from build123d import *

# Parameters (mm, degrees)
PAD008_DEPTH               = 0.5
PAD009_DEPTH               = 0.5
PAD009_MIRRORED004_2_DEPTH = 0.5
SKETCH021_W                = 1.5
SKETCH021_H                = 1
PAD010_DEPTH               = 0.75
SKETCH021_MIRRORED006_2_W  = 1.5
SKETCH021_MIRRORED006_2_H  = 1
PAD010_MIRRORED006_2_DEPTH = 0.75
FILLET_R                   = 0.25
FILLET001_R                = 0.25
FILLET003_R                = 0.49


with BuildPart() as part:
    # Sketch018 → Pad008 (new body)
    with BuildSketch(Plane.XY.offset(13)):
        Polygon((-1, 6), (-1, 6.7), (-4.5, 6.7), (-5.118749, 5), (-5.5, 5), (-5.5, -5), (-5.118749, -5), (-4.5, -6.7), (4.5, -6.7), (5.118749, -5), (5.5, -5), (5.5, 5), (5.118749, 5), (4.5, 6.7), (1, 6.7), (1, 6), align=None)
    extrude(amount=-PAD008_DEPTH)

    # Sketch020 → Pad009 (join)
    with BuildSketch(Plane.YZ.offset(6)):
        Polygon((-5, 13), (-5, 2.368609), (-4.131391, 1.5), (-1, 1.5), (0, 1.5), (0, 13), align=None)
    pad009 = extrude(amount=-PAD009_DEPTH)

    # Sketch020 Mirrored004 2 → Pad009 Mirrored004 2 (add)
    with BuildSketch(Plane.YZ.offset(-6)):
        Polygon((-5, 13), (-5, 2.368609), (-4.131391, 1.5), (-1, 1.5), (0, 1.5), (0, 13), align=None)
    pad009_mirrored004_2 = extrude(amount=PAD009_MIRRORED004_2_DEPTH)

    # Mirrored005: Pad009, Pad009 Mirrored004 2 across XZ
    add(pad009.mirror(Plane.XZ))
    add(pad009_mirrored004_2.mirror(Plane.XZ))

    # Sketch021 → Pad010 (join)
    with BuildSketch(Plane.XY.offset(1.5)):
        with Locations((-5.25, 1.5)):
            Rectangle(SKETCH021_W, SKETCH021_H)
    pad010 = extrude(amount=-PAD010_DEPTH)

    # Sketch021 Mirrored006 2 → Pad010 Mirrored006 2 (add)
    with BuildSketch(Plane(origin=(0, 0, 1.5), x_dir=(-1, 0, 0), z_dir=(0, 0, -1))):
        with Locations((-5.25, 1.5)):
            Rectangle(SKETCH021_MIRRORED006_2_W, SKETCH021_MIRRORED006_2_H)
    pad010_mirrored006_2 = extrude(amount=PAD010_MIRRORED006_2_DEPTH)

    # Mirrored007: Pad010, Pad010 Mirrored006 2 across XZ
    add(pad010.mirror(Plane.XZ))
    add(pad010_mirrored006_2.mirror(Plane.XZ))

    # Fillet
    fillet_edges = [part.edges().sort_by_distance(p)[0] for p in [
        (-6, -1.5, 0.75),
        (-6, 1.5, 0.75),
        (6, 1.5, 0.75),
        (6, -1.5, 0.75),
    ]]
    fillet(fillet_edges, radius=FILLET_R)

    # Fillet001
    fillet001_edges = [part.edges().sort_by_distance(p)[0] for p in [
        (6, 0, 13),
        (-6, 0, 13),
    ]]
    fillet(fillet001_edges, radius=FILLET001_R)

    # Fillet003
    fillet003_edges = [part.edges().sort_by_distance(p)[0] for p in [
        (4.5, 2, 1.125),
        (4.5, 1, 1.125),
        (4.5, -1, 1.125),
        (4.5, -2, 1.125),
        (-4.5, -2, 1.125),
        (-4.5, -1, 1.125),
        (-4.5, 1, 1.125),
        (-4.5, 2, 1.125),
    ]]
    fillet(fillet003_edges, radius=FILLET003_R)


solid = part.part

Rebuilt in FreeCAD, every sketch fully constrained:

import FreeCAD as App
import Part
import Sketcher

V = App.Vector
Q = App.Units.Quantity


def edges_at(feature, points):
    """Names of the edges that pass closest to the given points."""
    edges = feature.Shape.Edges
    near = lambda p: min(range(len(edges)), key=lambda i: edges[i].distToShape(Part.Vertex(*p))[0])
    return sorted({f"Edge{near(p) + 1}" for p in points})

doc = App.newDocument("Part")
body = doc.addObject("PartDesign::Body", "Body")

# Sketch on XY plane
sketch1 = doc.addObject("Sketcher::SketchObject", "Sketch")
body.addObject(sketch1)
sketch1.AttachmentSupport = (doc.XY_Plane, [""])
sketch1.MapMode = "FlatFace"
sketch1.AttachmentOffset = App.Placement(V(0, 0, 13), App.Rotation())
sketch1.addGeometry([
    Part.LineSegment(V(-1, 6, 0), V(-1, 6.7, 0)),  # 0
    Part.LineSegment(V(-1, 6.7, 0), V(-4.5, 6.7, 0)),  # 1
    Part.LineSegment(V(-4.5, 6.7, 0), V(-5.12, 5, 0)),  # 2
    Part.LineSegment(V(-5.12, 5, 0), V(-5.5, 5, 0)),  # 3
    Part.LineSegment(V(-5.5, 5, 0), V(-5.5, -5, 0)),  # 4
    Part.LineSegment(V(-5.5, -5, 0), V(-5.12, -5, 0)),  # 5
    Part.LineSegment(V(-5.12, -5, 0), V(-4.5, -6.7, 0)),  # 6
    Part.LineSegment(V(-4.5, -6.7, 0), V(4.5, -6.7, 0)),  # 7
    Part.LineSegment(V(4.5, -6.7, 0), V(5.12, -5, 0)),  # 8
    Part.LineSegment(V(5.12, -5, 0), V(5.5, -5, 0)),  # 9
    Part.LineSegment(V(5.5, -5, 0), V(5.5, 5, 0)),  # 10
    Part.LineSegment(V(5.5, 5, 0), V(5.12, 5, 0)),  # 11
    Part.LineSegment(V(5.12, 5, 0), V(4.5, 6.7, 0)),  # 12
    Part.LineSegment(V(4.5, 6.7, 0), V(1, 6.7, 0)),  # 13
    Part.LineSegment(V(1, 6.7, 0), V(1, 6, 0)),  # 14
    Part.LineSegment(V(1, 6, 0), V(-1, 6, 0)),  # 15
], False)
sketch1.addConstraint([
    Sketcher.Constraint("Coincident", 0, 2, 1, 1),
    Sketcher.Constraint("Coincident", 1, 2, 2, 1),
    Sketcher.Constraint("Coincident", 2, 2, 3, 1),
    Sketcher.Constraint("Coincident", 3, 2, 4, 1),
    Sketcher.Constraint("Coincident", 4, 2, 5, 1),
    Sketcher.Constraint("Coincident", 5, 2, 6, 1),
    Sketcher.Constraint("Coincident", 6, 2, 7, 1),
    Sketcher.Constraint("Coincident", 7, 2, 8, 1),
    Sketcher.Constraint("Coincident", 8, 2, 9, 1),
    Sketcher.Constraint("Coincident", 9, 2, 10, 1),
    Sketcher.Constraint("Coincident", 10, 2, 11, 1),
    Sketcher.Constraint("Coincident", 11, 2, 12, 1),
    Sketcher.Constraint("Coincident", 12, 2, 13, 1),
    Sketcher.Constraint("Coincident", 13, 2, 14, 1),
    Sketcher.Constraint("Coincident", 14, 2, 15, 1),
    Sketcher.Constraint("Coincident", 15, 2, 0, 1),
    Sketcher.Constraint("Vertical", 0),
    Sketcher.Constraint("Horizontal", 1),
    Sketcher.Constraint("Horizontal", 3),
    Sketcher.Constraint("Vertical", 4),
    Sketcher.Constraint("Horizontal", 5),
    Sketcher.Constraint("Horizontal", 7),
    Sketcher.Constraint("Horizontal", 9),
    Sketcher.Constraint("Vertical", 10),
    Sketcher.Constraint("Horizontal", 11),
    Sketcher.Constraint("Horizontal", 13),
    Sketcher.Constraint("Vertical", 14),
    Sketcher.Constraint("Horizontal", 15),
    Sketcher.Constraint("Symmetric", 1, 2, 7, 2, -1, 1),
    Sketcher.Constraint("Symmetric", 2, 2, 8, 2, -1, 1),
    Sketcher.Constraint("Symmetric", 4, 2, 10, 2, -1, 1),
    Sketcher.Constraint("Symmetric", 6, 2, 12, 2, -1, 1),
    Sketcher.Constraint("Symmetric", 5, 2, 8, 2, -2),
    Sketcher.Constraint("Parallel", 6, 12),
    Sketcher.Constraint("Vertical", 1, 2, 6, 2),
    Sketcher.Constraint("Equal", 1, 13),
    Sketcher.Constraint("DistanceX", 7, 1, 7, 2, Q("9 mm")),
    Sketcher.Constraint("DistanceX", 15, 2, 15, 1, Q("2 mm")),
    Sketcher.Constraint("DistanceY", 4, 2, 4, 1, Q("10 mm")),
    Sketcher.Constraint("Angle", 2, Q("-109.999988 deg")),
    Sketcher.Constraint("DistanceY", 0, 1, 0, 2, Q("0.7 mm")),
    Sketcher.Constraint("DistanceY", -1, 1, 14, 2, Q("6 mm")),
    Sketcher.Constraint("DistanceX", 3, 2, 1, 2, Q("1 mm")),
])
pad1 = doc.addObject("PartDesign::Pad", "Pad")
body.addObject(pad1)
pad1.Profile = sketch1
pad1.Length = 0.5
pad1.Reversed = True

# Sketch on YZ plane
sketch2 = doc.addObject("Sketcher::SketchObject", "Sketch001")
body.addObject(sketch2)
sketch2.AttachmentSupport = (doc.YZ_Plane, [""])
sketch2.MapMode = "FlatFace"
sketch2.AttachmentOffset = App.Placement(V(0, 0, 6), App.Rotation())
sketch2.addGeometry([
    Part.LineSegment(V(-5, 13, 0), V(-5, 2.4, 0)),  # 0
    Part.LineSegment(V(-5, 2.4, 0), V(-4.1, 1.5, 0)),  # 1
    Part.LineSegment(V(-4.1, 1.5, 0), V(0, 1.5, 0)),  # 2
    Part.LineSegment(V(0, 1.5, 0), V(0, 13, 0)),  # 3
    Part.LineSegment(V(0, 13, 0), V(-5, 13, 0)),  # 4
], False)
sketch2.addConstraint([
    Sketcher.Constraint("Coincident", 0, 2, 1, 1),
    Sketcher.Constraint("Coincident", 1, 2, 2, 1),
    Sketcher.Constraint("Coincident", 2, 2, 3, 1),
    Sketcher.Constraint("Coincident", 3, 2, 4, 1),
    Sketcher.Constraint("Coincident", 4, 2, 0, 1),
    Sketcher.Constraint("Vertical", 0),
    Sketcher.Constraint("Horizontal", 2),
    Sketcher.Constraint("Vertical", 3),
    Sketcher.Constraint("Horizontal", 4),
    Sketcher.Constraint("PointOnObject", 2, 2, -2),
    Sketcher.Constraint("DistanceX", 4, 2, 4, 1, Q("5 mm")),
    Sketcher.Constraint("Angle", 1, Q("-45 deg")),
    Sketcher.Constraint("DistanceY", 3, 1, 3, 2, Q("11.5 mm")),
    Sketcher.Constraint("DistanceY", -1, 1, 3, 2, Q("13 mm")),
    Sketcher.Constraint("Distance", 1, Q("1.228399 mm")),
])
pad2 = doc.addObject("PartDesign::Pad", "Pad001")
body.addObject(pad2)
pad2.Profile = sketch2
pad2.Length = 0.5
pad2.Reversed = True

# Sketch on YZ plane
sketch3 = doc.addObject("Sketcher::SketchObject", "Sketch002")
body.addObject(sketch3)
sketch3.AttachmentSupport = (doc.YZ_Plane, [""])
sketch3.MapMode = "FlatFace"
sketch3.AttachmentOffset = App.Placement(V(0, 0, -6), App.Rotation())
sketch3.addGeometry([
    Part.LineSegment(V(-5, 13, 0), V(-5, 2.4, 0)),  # 0
    Part.LineSegment(V(-5, 2.4, 0), V(-4.1, 1.5, 0)),  # 1
    Part.LineSegment(V(-4.1, 1.5, 0), V(0, 1.5, 0)),  # 2
    Part.LineSegment(V(0, 1.5, 0), V(0, 13, 0)),  # 3
    Part.LineSegment(V(0, 13, 0), V(-5, 13, 0)),  # 4
], False)
sketch3.addConstraint([
    Sketcher.Constraint("Coincident", 0, 2, 1, 1),
    Sketcher.Constraint("Coincident", 1, 2, 2, 1),
    Sketcher.Constraint("Coincident", 2, 2, 3, 1),
    Sketcher.Constraint("Coincident", 3, 2, 4, 1),
    Sketcher.Constraint("Coincident", 4, 2, 0, 1),
    Sketcher.Constraint("Vertical", 0),
    Sketcher.Constraint("Horizontal", 2),
    Sketcher.Constraint("Vertical", 3),
    Sketcher.Constraint("Horizontal", 4),
    Sketcher.Constraint("PointOnObject", 2, 2, -2),
    Sketcher.Constraint("DistanceX", 4, 2, 4, 1, Q("5 mm")),
    Sketcher.Constraint("Angle", 1, Q("-45 deg")),
    Sketcher.Constraint("DistanceY", 3, 1, 3, 2, Q("11.5 mm")),
    Sketcher.Constraint("DistanceY", -1, 1, 3, 2, Q("13 mm")),
    Sketcher.Constraint("Distance", 1, Q("1.228399 mm")),
])
pad3 = doc.addObject("PartDesign::Pad", "Pad002")
body.addObject(pad3)
pad3.Profile = sketch3
pad3.Length = 0.5
doc.recompute()

mirrored = doc.addObject("PartDesign::Mirrored", "Mirrored")
body.addObject(mirrored)
mirrored.Originals = [pad2, pad3]
mirrored.MirrorPlane = (doc.XZ_Plane, [""])
body.Tip = mirrored

# Sketch on XY plane
sketch4 = doc.addObject("Sketcher::SketchObject", "Sketch003")
body.addObject(sketch4)
sketch4.AttachmentSupport = (doc.XY_Plane, [""])
sketch4.MapMode = "FlatFace"
sketch4.AttachmentOffset = App.Placement(V(0, 0, 1.5), App.Rotation())
sketch4.addGeometry([
    Part.LineSegment(V(-6, 2, 0), V(-6, 1, 0)),
    Part.LineSegment(V(-6, 1, 0), V(-4.5, 1, 0)),
    Part.LineSegment(V(-4.5, 1, 0), V(-4.5, 2, 0)),
    Part.LineSegment(V(-4.5, 2, 0), V(-6, 2, 0)),
], False)
sketch4.addConstraint([
    Sketcher.Constraint("Coincident", 0, 2, 1, 1),
    Sketcher.Constraint("Coincident", 1, 2, 2, 1),
    Sketcher.Constraint("Coincident", 2, 2, 3, 1),
    Sketcher.Constraint("Coincident", 3, 2, 0, 1),
    Sketcher.Constraint("Vertical", 0),
    Sketcher.Constraint("Horizontal", 1),
    Sketcher.Constraint("Vertical", 2),
    Sketcher.Constraint("Horizontal", 3),
    Sketcher.Constraint("DistanceY", 0, 2, 0, 1, Q("1 mm")),
    Sketcher.Constraint("DistanceX", 1, 1, 1, 2, Q("1.5 mm")),
    Sketcher.Constraint("DistanceX", 0, 2, -1, 1, Q("6 mm")),
    Sketcher.Constraint("DistanceY", -1, 1, 0, 2, Q("1 mm")),
])
pad4 = doc.addObject("PartDesign::Pad", "Pad003")
body.addObject(pad4)
pad4.Profile = sketch4
pad4.Length = 0.75
pad4.Reversed = True

# Sketch on XY plane
sketch5 = doc.addObject("Sketcher::SketchObject", "Sketch004")
body.addObject(sketch5)
sketch5.AttachmentSupport = (doc.XY_Plane, [""])
sketch5.MapMode = "FlatFace"
sketch5.AttachmentOffset = App.Placement(V(0, 0, 1.5), App.Rotation())
sketch5.addGeometry([
    Part.LineSegment(V(6, 2, 0), V(6, 1, 0)),
    Part.LineSegment(V(6, 1, 0), V(4.5, 1, 0)),
    Part.LineSegment(V(4.5, 1, 0), V(4.5, 2, 0)),
    Part.LineSegment(V(4.5, 2, 0), V(6, 2, 0)),
], False)
sketch5.addConstraint([
    Sketcher.Constraint("Coincident", 0, 2, 1, 1),
    Sketcher.Constraint("Coincident", 1, 2, 2, 1),
    Sketcher.Constraint("Coincident", 2, 2, 3, 1),
    Sketcher.Constraint("Coincident", 3, 2, 0, 1),
    Sketcher.Constraint("Vertical", 0),
    Sketcher.Constraint("Horizontal", 1),
    Sketcher.Constraint("Vertical", 2),
    Sketcher.Constraint("Horizontal", 3),
    Sketcher.Constraint("DistanceY", 0, 2, 0, 1, Q("1 mm")),
    Sketcher.Constraint("DistanceX", 1, 2, 1, 1, Q("1.5 mm")),
    Sketcher.Constraint("DistanceX", -1, 1, 0, 2, Q("6 mm")),
    Sketcher.Constraint("DistanceY", -1, 1, 0, 2, Q("1 mm")),
])
pad5 = doc.addObject("PartDesign::Pad", "Pad004")
body.addObject(pad5)
pad5.Profile = sketch5
pad5.Length = 0.75
pad5.Reversed = True
doc.recompute()

mirrored2 = doc.addObject("PartDesign::Mirrored", "Mirrored001")
body.addObject(mirrored2)
mirrored2.Originals = [pad4, pad5]
mirrored2.MirrorPlane = (doc.XZ_Plane, [""])
body.Tip = mirrored2
doc.recompute()

fillet = doc.addObject("PartDesign::Fillet", "Fillet")
body.addObject(fillet)
fillet.Base = (mirrored2, edges_at(mirrored2, [
    (-6, -1.5, 0.75),
    (-6, 1.5, 0.75),
    (6, 1.5, 0.75),
    (6, -1.5, 0.75),
]))
fillet.Radius = 0.25
doc.recompute()

fillet2 = doc.addObject("PartDesign::Fillet", "Fillet001")
body.addObject(fillet2)
fillet2.Base = (fillet, edges_at(fillet, [(6, 0, 13), (-6, 0, 13)]))
fillet2.Radius = 0.25
doc.recompute()

fillet3 = doc.addObject("PartDesign::Fillet", "Fillet002")
body.addObject(fillet3)
fillet3.Base = (fillet2, edges_at(fillet2, [
    (4.5, 2, 1.125),
    (4.5, 1, 1.125),
    (4.5, -1, 1.125),
    (4.5, -2, 1.125),
    (-4.5, -2, 1.125),
    (-4.5, -1, 1.125),
    (-4.5, 1, 1.125),
    (-4.5, 2, 1.125),
]))
fillet3.Radius = 0.49

doc.recompute()
